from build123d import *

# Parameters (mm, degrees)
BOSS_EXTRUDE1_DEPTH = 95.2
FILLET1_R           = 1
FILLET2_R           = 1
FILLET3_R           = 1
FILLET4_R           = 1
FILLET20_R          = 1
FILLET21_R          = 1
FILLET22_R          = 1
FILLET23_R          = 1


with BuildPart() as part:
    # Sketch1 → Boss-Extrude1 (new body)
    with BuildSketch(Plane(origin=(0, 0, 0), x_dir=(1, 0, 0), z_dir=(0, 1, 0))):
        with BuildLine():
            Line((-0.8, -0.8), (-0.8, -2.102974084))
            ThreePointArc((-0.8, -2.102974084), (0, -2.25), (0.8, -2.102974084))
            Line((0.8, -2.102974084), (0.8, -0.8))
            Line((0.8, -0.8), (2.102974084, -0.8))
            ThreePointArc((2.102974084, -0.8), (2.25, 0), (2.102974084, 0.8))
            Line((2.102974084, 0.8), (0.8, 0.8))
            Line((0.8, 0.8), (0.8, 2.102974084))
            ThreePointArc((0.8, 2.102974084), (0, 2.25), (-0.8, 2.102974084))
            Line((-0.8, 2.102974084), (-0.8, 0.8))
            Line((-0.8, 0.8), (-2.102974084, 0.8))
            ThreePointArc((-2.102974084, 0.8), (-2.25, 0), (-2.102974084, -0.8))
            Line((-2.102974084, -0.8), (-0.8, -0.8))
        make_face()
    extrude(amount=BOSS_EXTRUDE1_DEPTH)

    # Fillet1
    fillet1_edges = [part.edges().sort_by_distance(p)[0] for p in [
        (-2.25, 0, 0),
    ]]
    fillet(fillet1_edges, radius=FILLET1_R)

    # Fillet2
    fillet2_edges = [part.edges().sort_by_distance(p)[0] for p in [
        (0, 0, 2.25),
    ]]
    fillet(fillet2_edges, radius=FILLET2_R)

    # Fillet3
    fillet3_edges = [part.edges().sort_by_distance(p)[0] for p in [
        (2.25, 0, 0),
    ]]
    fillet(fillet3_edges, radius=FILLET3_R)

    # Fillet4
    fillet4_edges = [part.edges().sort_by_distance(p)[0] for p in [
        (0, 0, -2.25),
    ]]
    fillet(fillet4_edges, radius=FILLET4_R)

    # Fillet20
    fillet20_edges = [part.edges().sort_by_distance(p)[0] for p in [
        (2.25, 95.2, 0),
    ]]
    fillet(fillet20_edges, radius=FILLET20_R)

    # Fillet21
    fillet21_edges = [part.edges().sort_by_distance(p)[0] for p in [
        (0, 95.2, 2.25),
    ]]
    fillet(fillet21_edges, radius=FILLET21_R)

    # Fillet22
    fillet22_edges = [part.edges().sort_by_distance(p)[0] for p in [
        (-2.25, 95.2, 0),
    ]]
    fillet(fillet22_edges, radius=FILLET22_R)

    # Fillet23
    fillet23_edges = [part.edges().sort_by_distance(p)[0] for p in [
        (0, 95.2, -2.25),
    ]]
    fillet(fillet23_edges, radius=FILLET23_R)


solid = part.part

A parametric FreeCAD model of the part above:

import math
import FreeCAD as App
import Part
import Sketcher


def edges_at(feature, points):
    """Names of the edges that pass closest to the given points."""
    edges = feature.Shape.Edges
    near = lambda p: min(range(len(edges)), key=lambda i: edges[i].distToShape(Part.Vertex(*p))[0])
    return sorted({f"Edge{near(p) + 1}" for p in points})

doc = App.newDocument("Part")
body = doc.addObject("PartDesign::Body", "Body")

sketch1 = body.newObject("Sketcher::SketchObject", "Sketch")
sketch1.AttachmentSupport = (doc.getObject("XZ_Plane"), [""])
sketch1.MapMode = "FlatFace"
sketch1.addGeometry([
    Part.LineSegment(App.Vector(-0.8, 0.8, 0), App.Vector(-0.8, 2.102974, 0)),
    Part.ArcOfCircle(Part.Circle(App.Vector(0, 0, 0), App.Vector(0, 0, 1), 2.25), math.radians(69.172503), math.radians(110.827497)),
    Part.LineSegment(App.Vector(0.8, 2.102974, 0), App.Vector(0.8, 0.8, 0)),
    Part.LineSegment(App.Vector(0.8, 0.8, 0), App.Vector(2.102974, 0.8, 0)),
    Part.ArcOfCircle(Part.Circle(App.Vector(0, 0, 0), App.Vector(0, 0, 1), 2.25), math.radians(-20.827497), math.radians(20.827497)),
    Part.LineSegment(App.Vector(2.102974, -0.8, 0), App.Vector(0.8, -0.8, 0)),
    Part.LineSegment(App.Vector(0.8, -0.8, 0), App.Vector(0.8, -2.102974, 0)),
    Part.ArcOfCircle(Part.Circle(App.Vector(0, 0, 0), App.Vector(0, 0, 1), 2.25), math.radians(-110.827497), math.radians(-69.172503)),
    Part.LineSegment(App.Vector(-0.8, -2.102974, 0), App.Vector(-0.8, -0.8, 0)),
    Part.LineSegment(App.Vector(-0.8, -0.8, 0), App.Vector(-2.102974, -0.8, 0)),
    Part.ArcOfCircle(Part.Circle(App.Vector(0, 0, 0), App.Vector(0, 0, 1), 2.25), math.radians(159.172503), math.radians(200.827497)),
    Part.LineSegment(App.Vector(-2.102974, 0.8, 0), App.Vector(-0.8, 0.8, 0)),
], False)
sketch1.addConstraint([
    Sketcher.Constraint("Coincident", 0, 2, 1, 2),
    Sketcher.Constraint("Coincident", 1, 1, 2, 1),
    Sketcher.Constraint("Coincident", 2, 2, 3, 1),
    Sketcher.Constraint("Coincident", 3, 2, 4, 2),
    Sketcher.Constraint("Coincident", 4, 1, 5, 1),
    Sketcher.Constraint("Coincident", 5, 2, 6, 1),
    Sketcher.Constraint("Coincident", 6, 2, 7, 2),
    Sketcher.Constraint("Coincident", 7, 1, 8, 1),
    Sketcher.Constraint("Coincident", 8, 2, 9, 1),
    Sketcher.Constraint("Coincident", 9, 2, 10, 2),
    Sketcher.Constraint("Coincident", 10, 1, 11, 1),
    Sketcher.Constraint("Coincident", 11, 2, 0, 1),
    Sketcher.Constraint("Vertical", 0),
    Sketcher.Constraint("Vertical", 2),
    Sketcher.Constraint("Horizontal", 3),
    Sketcher.Constraint("Horizontal", 5),
    Sketcher.Constraint("Vertical", 6),
    Sketcher.Constraint("Vertical", 8),
    Sketcher.Constraint("Horizontal", 9),
    Sketcher.Constraint("Horizontal", 11),
    Sketcher.Constraint("Coincident", 1, 3, -1, 1),
    Sketcher.Constraint("Coincident", 4, 3, -1, 1),
    Sketcher.Constraint("Coincident", 7, 3, -1, 1),
    Sketcher.Constraint("Coincident", 10, 3, -1, 1),
    Sketcher.Constraint("Equal", 1, 4),
    Sketcher.Constraint("Equal", 4, 7),
    Sketcher.Constraint("Equal", 7, 10),
    Sketcher.Constraint("Symmetric", 2, 2, 8, 2, -1, 1),
    Sketcher.Constraint("Symmetric", 5, 2, 11, 2, -1, 1),
    Sketcher.Constraint("Symmetric", 5, 2, 8, 2, -2),
    Sketcher.Constraint("Equal", 11, 0),
    Sketcher.Constraint("Radius", 1, 2.25),
    Sketcher.Constraint("DistanceX", 0, 2, -1, 1, 0.8),
])
pad1 = body.newObject("PartDesign::Pad", "Pad")
pad1.Profile = sketch1
pad1.Length = 95.2
pad1.Reversed = True
doc.recompute()

fillet = body.newObject("PartDesign::Fillet", "Fillet")
fillet.Base = (pad1, edges_at(pad1, [(-2.25, 0, 0)]))
fillet.Radius = 1
doc.recompute()

fillet2 = body.newObject("PartDesign::Fillet", "Fillet001")
fillet2.Base = (fillet, edges_at(fillet, [(0, 0, 2.25)]))
fillet2.Radius = 1
doc.recompute()

fillet3 = body.newObject("PartDesign::Fillet", "Fillet002")
fillet3.Base = (fillet2, edges_at(fillet2, [(2.25, 0, 0)]))
fillet3.Radius = 1
doc.recompute()

fillet4 = body.newObject("PartDesign::Fillet", "Fillet003")
fillet4.Base = (fillet3, edges_at(fillet3, [(0, 0, -2.25)]))
fillet4.Radius = 1
doc.recompute()

fillet5 = body.newObject("PartDesign::Fillet", "Fillet004")
fillet5.Base = (fillet4, edges_at(fillet4, [(2.25, 95.2, 0)]))
fillet5.Radius = 1
doc.recompute()

fillet6 = body.newObject("PartDesign::Fillet", "Fillet005")
fillet6.Base = (fillet5, edges_at(fillet5, [(0, 95.2, 2.25)]))
fillet6.Radius = 1
doc.recompute()

fillet7 = body.newObject("PartDesign::Fillet", "Fillet006")
fillet7.Base = (fillet6, edges_at(fillet6, [(-2.25, 95.2, 0)]))
fillet7.Radius = 1
doc.recompute()

fillet8 = body.newObject("PartDesign::Fillet", "Fillet007")
fillet8.Base = (fillet7, edges_at(fillet7, [(0, 95.2, -2.25)]))
fillet8.Radius = 1

doc.recompute()
